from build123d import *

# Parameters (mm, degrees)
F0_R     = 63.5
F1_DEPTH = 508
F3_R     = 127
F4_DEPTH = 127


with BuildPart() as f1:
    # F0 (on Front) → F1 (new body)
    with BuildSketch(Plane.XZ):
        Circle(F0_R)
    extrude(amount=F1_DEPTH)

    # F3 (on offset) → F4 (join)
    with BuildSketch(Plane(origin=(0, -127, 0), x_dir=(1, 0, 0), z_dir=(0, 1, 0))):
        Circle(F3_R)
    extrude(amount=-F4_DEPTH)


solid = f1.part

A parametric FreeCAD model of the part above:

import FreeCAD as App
import Part
import Sketcher
Q = App.Units.Quantity

doc = App.newDocument("Part")
body = doc.addObject("PartDesign::Body", "Body")

# Sketch on XZ plane
sketch1 = body.newObject("Sketcher::SketchObject", "Sketch")
sketch1.AttachmentSupport = (doc.getObject("XZ_Plane"), [""])
sketch1.MapMode = "FlatFace"
sketch1.addGeometry(Part.Circle(App.Vector(0, 0, 0), App.Vector(0, 0, 1), 64), False)
sketch1.addConstraint([
    Sketcher.Constraint("Coincident", 0, 3, -1, 1),
    Sketcher.Constraint("Diameter", 0, Q("5 in")),
])
pad1 = body.newObject("PartDesign::Pad", "Pad")
pad1.Profile = sketch1
pad1.Length = Q("20 in")

# Sketch on XZ plane
sketch2 = body.newObject("Sketcher::SketchObject", "Sketch001")
sketch2.AttachmentSupport = (doc.getObject("XZ_Plane"), [""])
sketch2.MapMode = "FlatFace"
sketch2.AttachmentOffset = App.Placement(App.Vector(0, 0, 5 * 25.4), App.Rotation())
sketch2.addGeometry(Part.Circle(App.Vector(0, 0, 0), App.Vector(0, 0, 1), 127), False)
sketch2.addConstraint([
    Sketcher.Constraint("Coincident", 0, 3, -1, 1),
    Sketcher.Constraint("Diameter", 0, Q("10 in")),
])
pad2 = body.newObject("PartDesign::Pad", "Pad001")
pad2.Profile = sketch2
pad2.Length = Q("5 in")

doc.recompute()
